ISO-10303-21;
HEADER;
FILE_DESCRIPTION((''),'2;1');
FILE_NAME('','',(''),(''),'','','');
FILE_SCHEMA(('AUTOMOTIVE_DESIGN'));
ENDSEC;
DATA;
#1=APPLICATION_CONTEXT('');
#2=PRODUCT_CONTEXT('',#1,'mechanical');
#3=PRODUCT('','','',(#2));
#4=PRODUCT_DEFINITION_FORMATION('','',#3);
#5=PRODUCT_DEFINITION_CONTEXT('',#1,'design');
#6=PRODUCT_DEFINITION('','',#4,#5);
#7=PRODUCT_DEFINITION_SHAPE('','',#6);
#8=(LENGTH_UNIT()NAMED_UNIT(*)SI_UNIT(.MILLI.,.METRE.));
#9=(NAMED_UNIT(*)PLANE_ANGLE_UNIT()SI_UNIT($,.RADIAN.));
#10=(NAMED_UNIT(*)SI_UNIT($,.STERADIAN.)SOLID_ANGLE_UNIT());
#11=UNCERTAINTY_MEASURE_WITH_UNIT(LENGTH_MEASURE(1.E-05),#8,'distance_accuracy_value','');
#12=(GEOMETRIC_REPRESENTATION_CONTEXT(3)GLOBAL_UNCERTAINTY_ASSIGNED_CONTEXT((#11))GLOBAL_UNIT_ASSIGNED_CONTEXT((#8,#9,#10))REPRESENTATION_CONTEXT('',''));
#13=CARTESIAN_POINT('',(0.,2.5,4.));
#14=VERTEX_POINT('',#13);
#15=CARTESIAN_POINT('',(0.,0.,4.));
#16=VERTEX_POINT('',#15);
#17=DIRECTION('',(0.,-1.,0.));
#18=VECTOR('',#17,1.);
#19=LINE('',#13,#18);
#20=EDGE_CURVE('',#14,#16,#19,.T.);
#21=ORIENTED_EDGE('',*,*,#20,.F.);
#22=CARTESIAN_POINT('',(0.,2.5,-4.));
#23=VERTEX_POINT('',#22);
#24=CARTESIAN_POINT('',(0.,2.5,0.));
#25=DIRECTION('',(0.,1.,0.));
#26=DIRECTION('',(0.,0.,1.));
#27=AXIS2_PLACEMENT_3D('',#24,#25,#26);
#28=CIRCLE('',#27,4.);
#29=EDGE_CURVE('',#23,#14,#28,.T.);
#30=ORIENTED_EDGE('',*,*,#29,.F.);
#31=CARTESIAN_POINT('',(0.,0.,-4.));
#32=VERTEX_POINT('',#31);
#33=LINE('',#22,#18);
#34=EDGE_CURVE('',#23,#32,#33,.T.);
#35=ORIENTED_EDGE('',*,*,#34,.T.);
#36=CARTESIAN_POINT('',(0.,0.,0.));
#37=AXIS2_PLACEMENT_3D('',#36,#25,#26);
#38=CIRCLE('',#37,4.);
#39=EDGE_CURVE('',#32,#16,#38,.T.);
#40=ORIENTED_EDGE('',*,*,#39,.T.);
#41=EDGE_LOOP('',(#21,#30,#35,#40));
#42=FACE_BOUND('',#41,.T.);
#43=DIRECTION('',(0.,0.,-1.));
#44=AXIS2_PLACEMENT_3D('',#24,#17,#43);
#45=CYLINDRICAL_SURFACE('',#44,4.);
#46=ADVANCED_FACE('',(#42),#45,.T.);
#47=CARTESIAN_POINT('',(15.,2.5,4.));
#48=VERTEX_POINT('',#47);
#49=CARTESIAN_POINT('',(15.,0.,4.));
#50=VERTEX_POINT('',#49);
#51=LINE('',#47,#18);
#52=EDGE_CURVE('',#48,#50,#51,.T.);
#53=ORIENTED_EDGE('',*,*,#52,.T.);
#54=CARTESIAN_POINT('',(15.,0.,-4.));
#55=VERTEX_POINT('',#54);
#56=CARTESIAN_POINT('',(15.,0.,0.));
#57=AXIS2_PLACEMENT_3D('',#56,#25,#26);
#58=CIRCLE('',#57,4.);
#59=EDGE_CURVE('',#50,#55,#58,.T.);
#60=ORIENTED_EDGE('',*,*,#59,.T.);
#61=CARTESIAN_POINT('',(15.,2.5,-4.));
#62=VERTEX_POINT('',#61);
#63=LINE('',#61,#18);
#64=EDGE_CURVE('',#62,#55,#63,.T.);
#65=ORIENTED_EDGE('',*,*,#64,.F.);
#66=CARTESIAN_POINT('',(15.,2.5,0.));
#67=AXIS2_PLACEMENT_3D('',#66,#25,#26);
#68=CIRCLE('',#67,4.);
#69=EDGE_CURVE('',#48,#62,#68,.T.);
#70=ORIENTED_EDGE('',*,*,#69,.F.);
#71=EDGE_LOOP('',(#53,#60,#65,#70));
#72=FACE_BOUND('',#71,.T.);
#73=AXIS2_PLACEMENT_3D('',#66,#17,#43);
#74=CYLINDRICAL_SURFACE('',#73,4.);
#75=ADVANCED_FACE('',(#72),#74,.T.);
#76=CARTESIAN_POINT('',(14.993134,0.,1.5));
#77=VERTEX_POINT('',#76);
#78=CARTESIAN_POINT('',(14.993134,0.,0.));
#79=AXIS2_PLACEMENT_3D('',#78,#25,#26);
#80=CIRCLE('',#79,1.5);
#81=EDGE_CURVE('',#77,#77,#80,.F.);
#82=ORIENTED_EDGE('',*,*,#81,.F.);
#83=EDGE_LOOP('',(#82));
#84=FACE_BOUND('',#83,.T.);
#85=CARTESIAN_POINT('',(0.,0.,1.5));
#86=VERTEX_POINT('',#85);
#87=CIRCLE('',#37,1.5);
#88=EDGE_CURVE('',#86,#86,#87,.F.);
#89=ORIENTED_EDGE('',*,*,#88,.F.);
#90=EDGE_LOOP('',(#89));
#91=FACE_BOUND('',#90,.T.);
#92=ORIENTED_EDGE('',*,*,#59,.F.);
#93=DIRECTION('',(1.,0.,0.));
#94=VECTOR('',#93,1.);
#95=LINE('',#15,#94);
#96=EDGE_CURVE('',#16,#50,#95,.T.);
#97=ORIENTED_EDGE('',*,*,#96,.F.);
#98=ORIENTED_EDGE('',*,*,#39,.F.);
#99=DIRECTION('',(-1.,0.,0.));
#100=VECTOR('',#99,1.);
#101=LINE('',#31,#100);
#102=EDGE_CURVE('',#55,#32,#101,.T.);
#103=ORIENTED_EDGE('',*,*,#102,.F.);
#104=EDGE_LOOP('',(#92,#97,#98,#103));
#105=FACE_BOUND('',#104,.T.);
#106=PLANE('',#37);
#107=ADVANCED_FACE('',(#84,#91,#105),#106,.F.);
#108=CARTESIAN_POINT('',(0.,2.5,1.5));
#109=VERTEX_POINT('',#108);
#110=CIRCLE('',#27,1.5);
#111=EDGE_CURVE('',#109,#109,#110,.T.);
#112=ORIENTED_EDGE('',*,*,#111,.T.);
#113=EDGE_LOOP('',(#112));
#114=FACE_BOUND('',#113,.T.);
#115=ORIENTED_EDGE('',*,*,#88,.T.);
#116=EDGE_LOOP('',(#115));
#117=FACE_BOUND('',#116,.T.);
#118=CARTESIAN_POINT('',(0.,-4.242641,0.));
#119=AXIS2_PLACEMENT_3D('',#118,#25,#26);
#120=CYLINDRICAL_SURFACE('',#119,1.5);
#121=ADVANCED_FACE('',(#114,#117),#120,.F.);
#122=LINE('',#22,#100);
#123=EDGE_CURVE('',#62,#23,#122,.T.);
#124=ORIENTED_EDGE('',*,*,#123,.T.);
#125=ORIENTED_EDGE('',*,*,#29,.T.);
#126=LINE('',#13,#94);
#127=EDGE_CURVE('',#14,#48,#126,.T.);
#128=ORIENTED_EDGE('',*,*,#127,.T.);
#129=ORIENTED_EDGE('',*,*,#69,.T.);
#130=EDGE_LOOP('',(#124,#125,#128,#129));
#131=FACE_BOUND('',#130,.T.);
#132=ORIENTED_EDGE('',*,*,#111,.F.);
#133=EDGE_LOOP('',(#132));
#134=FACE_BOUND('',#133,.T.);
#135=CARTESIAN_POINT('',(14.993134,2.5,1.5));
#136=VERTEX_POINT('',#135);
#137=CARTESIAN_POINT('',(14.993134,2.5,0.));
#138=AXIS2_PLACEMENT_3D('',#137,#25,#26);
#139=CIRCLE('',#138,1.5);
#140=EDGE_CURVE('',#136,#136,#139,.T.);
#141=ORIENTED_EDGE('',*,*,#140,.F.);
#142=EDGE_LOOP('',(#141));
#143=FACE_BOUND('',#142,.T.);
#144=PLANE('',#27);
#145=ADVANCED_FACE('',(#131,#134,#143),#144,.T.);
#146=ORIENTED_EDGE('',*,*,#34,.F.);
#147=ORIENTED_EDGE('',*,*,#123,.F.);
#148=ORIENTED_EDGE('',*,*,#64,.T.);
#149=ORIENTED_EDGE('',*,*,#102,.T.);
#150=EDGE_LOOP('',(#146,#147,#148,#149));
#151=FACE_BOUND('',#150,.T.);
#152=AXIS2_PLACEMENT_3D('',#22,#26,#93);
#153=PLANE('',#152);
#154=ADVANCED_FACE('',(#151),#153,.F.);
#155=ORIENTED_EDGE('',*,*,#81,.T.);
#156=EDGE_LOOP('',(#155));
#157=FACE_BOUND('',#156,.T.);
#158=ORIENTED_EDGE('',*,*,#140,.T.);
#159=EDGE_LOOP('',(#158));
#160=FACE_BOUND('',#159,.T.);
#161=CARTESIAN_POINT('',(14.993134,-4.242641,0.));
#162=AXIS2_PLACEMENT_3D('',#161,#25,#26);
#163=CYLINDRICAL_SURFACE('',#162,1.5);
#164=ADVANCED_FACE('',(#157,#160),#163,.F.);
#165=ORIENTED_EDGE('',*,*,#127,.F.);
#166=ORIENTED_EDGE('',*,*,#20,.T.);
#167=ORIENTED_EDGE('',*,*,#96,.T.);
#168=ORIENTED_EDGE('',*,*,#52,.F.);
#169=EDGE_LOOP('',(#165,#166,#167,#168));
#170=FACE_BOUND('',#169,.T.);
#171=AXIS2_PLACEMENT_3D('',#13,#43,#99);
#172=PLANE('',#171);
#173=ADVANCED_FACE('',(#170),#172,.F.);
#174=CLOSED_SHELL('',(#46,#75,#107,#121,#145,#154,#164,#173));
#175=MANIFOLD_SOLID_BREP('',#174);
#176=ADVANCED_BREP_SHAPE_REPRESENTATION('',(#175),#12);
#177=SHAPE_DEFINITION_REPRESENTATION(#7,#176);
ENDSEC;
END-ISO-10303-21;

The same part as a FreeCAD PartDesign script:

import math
import FreeCAD as App
import Part
import Sketcher
Q = App.Units.Quantity

doc = App.newDocument("Part")
body = doc.addObject("PartDesign::Body", "Body")

# Sketch on XZ plane
sketch1 = body.newObject("Sketcher::SketchObject", "Sketch")
sketch1.AttachmentSupport = (doc.getObject("XZ_Plane"), [""])
sketch1.MapMode = "FlatFace"
sketch1.addGeometry([
    Part.LineSegment(App.Vector(15, -4, 0), App.Vector(0, -4, 0)),
    Part.ArcOfCircle(Part.Circle(App.Vector(0, 0, 0), App.Vector(0, 0, 1), 4), math.radians(90), math.radians(270)),
    Part.LineSegment(App.Vector(0, 4, 0), App.Vector(15, 4, 0)),
    Part.ArcOfCircle(Part.Circle(App.Vector(15, 0, 0), App.Vector(0, 0, 1), 4), math.radians(-90), math.radians(90)),
], False)
sketch1.addConstraint([
    Sketcher.Constraint("Tangent", 0, 2, 1, 2),
    Sketcher.Constraint("Tangent", 1, 1, 2, 1),
    Sketcher.Constraint("Tangent", 2, 2, 3, 2),
    Sketcher.Constraint("Tangent", 3, 1, 0, 1),
    Sketcher.Constraint("Horizontal", 0),
    Sketcher.Constraint("Horizontal", 2),
    Sketcher.Constraint("Coincident", 1, 3, -1, 1),
    Sketcher.Constraint("Radius", 1, Q("4 mm")),
    Sketcher.Constraint("DistanceX", 0, 2, 0, 1, Q("15 mm")),
])
pad1 = body.newObject("PartDesign::Pad", "Pad")
pad1.Profile = sketch1
pad1.Length = 2.5
pad1.Reversed = True

# Sketch on XZ plane
sketch2 = body.newObject("Sketcher::SketchObject", "Sketch001")
sketch2.AttachmentSupport = (doc.getObject("XZ_Plane"), [""])
sketch2.MapMode = "FlatFace"
sketch2.AttachmentOffset = App.Placement(App.Vector(0, 0, -2.5), App.Rotation())
sketch2.addGeometry([
    Part.Circle(App.Vector(0, 0, 0), App.Vector(0, 0, 1), 1.5),
    Part.Circle(App.Vector(15, 0, 0), App.Vector(0, 0, 1), 1.5),
], False)
sketch2.addConstraint([
    Sketcher.Constraint("Coincident", 0, 3, -1, 1),
    Sketcher.Constraint("Equal", 0, 1),
    Sketcher.Constraint("PointOnObject", 1, 3, -1),
    Sketcher.Constraint("Diameter", 0, Q("3 mm")),
    Sketcher.Constraint("DistanceX", -1, 1, 1, 3, Q("14.993134 mm")),
])
pocket1 = body.newObject("PartDesign::Pocket", "Pocket")
pocket1.Profile = sketch2
pocket1.Length = 2.5
pocket1.Reversed = True

doc.recompute()
